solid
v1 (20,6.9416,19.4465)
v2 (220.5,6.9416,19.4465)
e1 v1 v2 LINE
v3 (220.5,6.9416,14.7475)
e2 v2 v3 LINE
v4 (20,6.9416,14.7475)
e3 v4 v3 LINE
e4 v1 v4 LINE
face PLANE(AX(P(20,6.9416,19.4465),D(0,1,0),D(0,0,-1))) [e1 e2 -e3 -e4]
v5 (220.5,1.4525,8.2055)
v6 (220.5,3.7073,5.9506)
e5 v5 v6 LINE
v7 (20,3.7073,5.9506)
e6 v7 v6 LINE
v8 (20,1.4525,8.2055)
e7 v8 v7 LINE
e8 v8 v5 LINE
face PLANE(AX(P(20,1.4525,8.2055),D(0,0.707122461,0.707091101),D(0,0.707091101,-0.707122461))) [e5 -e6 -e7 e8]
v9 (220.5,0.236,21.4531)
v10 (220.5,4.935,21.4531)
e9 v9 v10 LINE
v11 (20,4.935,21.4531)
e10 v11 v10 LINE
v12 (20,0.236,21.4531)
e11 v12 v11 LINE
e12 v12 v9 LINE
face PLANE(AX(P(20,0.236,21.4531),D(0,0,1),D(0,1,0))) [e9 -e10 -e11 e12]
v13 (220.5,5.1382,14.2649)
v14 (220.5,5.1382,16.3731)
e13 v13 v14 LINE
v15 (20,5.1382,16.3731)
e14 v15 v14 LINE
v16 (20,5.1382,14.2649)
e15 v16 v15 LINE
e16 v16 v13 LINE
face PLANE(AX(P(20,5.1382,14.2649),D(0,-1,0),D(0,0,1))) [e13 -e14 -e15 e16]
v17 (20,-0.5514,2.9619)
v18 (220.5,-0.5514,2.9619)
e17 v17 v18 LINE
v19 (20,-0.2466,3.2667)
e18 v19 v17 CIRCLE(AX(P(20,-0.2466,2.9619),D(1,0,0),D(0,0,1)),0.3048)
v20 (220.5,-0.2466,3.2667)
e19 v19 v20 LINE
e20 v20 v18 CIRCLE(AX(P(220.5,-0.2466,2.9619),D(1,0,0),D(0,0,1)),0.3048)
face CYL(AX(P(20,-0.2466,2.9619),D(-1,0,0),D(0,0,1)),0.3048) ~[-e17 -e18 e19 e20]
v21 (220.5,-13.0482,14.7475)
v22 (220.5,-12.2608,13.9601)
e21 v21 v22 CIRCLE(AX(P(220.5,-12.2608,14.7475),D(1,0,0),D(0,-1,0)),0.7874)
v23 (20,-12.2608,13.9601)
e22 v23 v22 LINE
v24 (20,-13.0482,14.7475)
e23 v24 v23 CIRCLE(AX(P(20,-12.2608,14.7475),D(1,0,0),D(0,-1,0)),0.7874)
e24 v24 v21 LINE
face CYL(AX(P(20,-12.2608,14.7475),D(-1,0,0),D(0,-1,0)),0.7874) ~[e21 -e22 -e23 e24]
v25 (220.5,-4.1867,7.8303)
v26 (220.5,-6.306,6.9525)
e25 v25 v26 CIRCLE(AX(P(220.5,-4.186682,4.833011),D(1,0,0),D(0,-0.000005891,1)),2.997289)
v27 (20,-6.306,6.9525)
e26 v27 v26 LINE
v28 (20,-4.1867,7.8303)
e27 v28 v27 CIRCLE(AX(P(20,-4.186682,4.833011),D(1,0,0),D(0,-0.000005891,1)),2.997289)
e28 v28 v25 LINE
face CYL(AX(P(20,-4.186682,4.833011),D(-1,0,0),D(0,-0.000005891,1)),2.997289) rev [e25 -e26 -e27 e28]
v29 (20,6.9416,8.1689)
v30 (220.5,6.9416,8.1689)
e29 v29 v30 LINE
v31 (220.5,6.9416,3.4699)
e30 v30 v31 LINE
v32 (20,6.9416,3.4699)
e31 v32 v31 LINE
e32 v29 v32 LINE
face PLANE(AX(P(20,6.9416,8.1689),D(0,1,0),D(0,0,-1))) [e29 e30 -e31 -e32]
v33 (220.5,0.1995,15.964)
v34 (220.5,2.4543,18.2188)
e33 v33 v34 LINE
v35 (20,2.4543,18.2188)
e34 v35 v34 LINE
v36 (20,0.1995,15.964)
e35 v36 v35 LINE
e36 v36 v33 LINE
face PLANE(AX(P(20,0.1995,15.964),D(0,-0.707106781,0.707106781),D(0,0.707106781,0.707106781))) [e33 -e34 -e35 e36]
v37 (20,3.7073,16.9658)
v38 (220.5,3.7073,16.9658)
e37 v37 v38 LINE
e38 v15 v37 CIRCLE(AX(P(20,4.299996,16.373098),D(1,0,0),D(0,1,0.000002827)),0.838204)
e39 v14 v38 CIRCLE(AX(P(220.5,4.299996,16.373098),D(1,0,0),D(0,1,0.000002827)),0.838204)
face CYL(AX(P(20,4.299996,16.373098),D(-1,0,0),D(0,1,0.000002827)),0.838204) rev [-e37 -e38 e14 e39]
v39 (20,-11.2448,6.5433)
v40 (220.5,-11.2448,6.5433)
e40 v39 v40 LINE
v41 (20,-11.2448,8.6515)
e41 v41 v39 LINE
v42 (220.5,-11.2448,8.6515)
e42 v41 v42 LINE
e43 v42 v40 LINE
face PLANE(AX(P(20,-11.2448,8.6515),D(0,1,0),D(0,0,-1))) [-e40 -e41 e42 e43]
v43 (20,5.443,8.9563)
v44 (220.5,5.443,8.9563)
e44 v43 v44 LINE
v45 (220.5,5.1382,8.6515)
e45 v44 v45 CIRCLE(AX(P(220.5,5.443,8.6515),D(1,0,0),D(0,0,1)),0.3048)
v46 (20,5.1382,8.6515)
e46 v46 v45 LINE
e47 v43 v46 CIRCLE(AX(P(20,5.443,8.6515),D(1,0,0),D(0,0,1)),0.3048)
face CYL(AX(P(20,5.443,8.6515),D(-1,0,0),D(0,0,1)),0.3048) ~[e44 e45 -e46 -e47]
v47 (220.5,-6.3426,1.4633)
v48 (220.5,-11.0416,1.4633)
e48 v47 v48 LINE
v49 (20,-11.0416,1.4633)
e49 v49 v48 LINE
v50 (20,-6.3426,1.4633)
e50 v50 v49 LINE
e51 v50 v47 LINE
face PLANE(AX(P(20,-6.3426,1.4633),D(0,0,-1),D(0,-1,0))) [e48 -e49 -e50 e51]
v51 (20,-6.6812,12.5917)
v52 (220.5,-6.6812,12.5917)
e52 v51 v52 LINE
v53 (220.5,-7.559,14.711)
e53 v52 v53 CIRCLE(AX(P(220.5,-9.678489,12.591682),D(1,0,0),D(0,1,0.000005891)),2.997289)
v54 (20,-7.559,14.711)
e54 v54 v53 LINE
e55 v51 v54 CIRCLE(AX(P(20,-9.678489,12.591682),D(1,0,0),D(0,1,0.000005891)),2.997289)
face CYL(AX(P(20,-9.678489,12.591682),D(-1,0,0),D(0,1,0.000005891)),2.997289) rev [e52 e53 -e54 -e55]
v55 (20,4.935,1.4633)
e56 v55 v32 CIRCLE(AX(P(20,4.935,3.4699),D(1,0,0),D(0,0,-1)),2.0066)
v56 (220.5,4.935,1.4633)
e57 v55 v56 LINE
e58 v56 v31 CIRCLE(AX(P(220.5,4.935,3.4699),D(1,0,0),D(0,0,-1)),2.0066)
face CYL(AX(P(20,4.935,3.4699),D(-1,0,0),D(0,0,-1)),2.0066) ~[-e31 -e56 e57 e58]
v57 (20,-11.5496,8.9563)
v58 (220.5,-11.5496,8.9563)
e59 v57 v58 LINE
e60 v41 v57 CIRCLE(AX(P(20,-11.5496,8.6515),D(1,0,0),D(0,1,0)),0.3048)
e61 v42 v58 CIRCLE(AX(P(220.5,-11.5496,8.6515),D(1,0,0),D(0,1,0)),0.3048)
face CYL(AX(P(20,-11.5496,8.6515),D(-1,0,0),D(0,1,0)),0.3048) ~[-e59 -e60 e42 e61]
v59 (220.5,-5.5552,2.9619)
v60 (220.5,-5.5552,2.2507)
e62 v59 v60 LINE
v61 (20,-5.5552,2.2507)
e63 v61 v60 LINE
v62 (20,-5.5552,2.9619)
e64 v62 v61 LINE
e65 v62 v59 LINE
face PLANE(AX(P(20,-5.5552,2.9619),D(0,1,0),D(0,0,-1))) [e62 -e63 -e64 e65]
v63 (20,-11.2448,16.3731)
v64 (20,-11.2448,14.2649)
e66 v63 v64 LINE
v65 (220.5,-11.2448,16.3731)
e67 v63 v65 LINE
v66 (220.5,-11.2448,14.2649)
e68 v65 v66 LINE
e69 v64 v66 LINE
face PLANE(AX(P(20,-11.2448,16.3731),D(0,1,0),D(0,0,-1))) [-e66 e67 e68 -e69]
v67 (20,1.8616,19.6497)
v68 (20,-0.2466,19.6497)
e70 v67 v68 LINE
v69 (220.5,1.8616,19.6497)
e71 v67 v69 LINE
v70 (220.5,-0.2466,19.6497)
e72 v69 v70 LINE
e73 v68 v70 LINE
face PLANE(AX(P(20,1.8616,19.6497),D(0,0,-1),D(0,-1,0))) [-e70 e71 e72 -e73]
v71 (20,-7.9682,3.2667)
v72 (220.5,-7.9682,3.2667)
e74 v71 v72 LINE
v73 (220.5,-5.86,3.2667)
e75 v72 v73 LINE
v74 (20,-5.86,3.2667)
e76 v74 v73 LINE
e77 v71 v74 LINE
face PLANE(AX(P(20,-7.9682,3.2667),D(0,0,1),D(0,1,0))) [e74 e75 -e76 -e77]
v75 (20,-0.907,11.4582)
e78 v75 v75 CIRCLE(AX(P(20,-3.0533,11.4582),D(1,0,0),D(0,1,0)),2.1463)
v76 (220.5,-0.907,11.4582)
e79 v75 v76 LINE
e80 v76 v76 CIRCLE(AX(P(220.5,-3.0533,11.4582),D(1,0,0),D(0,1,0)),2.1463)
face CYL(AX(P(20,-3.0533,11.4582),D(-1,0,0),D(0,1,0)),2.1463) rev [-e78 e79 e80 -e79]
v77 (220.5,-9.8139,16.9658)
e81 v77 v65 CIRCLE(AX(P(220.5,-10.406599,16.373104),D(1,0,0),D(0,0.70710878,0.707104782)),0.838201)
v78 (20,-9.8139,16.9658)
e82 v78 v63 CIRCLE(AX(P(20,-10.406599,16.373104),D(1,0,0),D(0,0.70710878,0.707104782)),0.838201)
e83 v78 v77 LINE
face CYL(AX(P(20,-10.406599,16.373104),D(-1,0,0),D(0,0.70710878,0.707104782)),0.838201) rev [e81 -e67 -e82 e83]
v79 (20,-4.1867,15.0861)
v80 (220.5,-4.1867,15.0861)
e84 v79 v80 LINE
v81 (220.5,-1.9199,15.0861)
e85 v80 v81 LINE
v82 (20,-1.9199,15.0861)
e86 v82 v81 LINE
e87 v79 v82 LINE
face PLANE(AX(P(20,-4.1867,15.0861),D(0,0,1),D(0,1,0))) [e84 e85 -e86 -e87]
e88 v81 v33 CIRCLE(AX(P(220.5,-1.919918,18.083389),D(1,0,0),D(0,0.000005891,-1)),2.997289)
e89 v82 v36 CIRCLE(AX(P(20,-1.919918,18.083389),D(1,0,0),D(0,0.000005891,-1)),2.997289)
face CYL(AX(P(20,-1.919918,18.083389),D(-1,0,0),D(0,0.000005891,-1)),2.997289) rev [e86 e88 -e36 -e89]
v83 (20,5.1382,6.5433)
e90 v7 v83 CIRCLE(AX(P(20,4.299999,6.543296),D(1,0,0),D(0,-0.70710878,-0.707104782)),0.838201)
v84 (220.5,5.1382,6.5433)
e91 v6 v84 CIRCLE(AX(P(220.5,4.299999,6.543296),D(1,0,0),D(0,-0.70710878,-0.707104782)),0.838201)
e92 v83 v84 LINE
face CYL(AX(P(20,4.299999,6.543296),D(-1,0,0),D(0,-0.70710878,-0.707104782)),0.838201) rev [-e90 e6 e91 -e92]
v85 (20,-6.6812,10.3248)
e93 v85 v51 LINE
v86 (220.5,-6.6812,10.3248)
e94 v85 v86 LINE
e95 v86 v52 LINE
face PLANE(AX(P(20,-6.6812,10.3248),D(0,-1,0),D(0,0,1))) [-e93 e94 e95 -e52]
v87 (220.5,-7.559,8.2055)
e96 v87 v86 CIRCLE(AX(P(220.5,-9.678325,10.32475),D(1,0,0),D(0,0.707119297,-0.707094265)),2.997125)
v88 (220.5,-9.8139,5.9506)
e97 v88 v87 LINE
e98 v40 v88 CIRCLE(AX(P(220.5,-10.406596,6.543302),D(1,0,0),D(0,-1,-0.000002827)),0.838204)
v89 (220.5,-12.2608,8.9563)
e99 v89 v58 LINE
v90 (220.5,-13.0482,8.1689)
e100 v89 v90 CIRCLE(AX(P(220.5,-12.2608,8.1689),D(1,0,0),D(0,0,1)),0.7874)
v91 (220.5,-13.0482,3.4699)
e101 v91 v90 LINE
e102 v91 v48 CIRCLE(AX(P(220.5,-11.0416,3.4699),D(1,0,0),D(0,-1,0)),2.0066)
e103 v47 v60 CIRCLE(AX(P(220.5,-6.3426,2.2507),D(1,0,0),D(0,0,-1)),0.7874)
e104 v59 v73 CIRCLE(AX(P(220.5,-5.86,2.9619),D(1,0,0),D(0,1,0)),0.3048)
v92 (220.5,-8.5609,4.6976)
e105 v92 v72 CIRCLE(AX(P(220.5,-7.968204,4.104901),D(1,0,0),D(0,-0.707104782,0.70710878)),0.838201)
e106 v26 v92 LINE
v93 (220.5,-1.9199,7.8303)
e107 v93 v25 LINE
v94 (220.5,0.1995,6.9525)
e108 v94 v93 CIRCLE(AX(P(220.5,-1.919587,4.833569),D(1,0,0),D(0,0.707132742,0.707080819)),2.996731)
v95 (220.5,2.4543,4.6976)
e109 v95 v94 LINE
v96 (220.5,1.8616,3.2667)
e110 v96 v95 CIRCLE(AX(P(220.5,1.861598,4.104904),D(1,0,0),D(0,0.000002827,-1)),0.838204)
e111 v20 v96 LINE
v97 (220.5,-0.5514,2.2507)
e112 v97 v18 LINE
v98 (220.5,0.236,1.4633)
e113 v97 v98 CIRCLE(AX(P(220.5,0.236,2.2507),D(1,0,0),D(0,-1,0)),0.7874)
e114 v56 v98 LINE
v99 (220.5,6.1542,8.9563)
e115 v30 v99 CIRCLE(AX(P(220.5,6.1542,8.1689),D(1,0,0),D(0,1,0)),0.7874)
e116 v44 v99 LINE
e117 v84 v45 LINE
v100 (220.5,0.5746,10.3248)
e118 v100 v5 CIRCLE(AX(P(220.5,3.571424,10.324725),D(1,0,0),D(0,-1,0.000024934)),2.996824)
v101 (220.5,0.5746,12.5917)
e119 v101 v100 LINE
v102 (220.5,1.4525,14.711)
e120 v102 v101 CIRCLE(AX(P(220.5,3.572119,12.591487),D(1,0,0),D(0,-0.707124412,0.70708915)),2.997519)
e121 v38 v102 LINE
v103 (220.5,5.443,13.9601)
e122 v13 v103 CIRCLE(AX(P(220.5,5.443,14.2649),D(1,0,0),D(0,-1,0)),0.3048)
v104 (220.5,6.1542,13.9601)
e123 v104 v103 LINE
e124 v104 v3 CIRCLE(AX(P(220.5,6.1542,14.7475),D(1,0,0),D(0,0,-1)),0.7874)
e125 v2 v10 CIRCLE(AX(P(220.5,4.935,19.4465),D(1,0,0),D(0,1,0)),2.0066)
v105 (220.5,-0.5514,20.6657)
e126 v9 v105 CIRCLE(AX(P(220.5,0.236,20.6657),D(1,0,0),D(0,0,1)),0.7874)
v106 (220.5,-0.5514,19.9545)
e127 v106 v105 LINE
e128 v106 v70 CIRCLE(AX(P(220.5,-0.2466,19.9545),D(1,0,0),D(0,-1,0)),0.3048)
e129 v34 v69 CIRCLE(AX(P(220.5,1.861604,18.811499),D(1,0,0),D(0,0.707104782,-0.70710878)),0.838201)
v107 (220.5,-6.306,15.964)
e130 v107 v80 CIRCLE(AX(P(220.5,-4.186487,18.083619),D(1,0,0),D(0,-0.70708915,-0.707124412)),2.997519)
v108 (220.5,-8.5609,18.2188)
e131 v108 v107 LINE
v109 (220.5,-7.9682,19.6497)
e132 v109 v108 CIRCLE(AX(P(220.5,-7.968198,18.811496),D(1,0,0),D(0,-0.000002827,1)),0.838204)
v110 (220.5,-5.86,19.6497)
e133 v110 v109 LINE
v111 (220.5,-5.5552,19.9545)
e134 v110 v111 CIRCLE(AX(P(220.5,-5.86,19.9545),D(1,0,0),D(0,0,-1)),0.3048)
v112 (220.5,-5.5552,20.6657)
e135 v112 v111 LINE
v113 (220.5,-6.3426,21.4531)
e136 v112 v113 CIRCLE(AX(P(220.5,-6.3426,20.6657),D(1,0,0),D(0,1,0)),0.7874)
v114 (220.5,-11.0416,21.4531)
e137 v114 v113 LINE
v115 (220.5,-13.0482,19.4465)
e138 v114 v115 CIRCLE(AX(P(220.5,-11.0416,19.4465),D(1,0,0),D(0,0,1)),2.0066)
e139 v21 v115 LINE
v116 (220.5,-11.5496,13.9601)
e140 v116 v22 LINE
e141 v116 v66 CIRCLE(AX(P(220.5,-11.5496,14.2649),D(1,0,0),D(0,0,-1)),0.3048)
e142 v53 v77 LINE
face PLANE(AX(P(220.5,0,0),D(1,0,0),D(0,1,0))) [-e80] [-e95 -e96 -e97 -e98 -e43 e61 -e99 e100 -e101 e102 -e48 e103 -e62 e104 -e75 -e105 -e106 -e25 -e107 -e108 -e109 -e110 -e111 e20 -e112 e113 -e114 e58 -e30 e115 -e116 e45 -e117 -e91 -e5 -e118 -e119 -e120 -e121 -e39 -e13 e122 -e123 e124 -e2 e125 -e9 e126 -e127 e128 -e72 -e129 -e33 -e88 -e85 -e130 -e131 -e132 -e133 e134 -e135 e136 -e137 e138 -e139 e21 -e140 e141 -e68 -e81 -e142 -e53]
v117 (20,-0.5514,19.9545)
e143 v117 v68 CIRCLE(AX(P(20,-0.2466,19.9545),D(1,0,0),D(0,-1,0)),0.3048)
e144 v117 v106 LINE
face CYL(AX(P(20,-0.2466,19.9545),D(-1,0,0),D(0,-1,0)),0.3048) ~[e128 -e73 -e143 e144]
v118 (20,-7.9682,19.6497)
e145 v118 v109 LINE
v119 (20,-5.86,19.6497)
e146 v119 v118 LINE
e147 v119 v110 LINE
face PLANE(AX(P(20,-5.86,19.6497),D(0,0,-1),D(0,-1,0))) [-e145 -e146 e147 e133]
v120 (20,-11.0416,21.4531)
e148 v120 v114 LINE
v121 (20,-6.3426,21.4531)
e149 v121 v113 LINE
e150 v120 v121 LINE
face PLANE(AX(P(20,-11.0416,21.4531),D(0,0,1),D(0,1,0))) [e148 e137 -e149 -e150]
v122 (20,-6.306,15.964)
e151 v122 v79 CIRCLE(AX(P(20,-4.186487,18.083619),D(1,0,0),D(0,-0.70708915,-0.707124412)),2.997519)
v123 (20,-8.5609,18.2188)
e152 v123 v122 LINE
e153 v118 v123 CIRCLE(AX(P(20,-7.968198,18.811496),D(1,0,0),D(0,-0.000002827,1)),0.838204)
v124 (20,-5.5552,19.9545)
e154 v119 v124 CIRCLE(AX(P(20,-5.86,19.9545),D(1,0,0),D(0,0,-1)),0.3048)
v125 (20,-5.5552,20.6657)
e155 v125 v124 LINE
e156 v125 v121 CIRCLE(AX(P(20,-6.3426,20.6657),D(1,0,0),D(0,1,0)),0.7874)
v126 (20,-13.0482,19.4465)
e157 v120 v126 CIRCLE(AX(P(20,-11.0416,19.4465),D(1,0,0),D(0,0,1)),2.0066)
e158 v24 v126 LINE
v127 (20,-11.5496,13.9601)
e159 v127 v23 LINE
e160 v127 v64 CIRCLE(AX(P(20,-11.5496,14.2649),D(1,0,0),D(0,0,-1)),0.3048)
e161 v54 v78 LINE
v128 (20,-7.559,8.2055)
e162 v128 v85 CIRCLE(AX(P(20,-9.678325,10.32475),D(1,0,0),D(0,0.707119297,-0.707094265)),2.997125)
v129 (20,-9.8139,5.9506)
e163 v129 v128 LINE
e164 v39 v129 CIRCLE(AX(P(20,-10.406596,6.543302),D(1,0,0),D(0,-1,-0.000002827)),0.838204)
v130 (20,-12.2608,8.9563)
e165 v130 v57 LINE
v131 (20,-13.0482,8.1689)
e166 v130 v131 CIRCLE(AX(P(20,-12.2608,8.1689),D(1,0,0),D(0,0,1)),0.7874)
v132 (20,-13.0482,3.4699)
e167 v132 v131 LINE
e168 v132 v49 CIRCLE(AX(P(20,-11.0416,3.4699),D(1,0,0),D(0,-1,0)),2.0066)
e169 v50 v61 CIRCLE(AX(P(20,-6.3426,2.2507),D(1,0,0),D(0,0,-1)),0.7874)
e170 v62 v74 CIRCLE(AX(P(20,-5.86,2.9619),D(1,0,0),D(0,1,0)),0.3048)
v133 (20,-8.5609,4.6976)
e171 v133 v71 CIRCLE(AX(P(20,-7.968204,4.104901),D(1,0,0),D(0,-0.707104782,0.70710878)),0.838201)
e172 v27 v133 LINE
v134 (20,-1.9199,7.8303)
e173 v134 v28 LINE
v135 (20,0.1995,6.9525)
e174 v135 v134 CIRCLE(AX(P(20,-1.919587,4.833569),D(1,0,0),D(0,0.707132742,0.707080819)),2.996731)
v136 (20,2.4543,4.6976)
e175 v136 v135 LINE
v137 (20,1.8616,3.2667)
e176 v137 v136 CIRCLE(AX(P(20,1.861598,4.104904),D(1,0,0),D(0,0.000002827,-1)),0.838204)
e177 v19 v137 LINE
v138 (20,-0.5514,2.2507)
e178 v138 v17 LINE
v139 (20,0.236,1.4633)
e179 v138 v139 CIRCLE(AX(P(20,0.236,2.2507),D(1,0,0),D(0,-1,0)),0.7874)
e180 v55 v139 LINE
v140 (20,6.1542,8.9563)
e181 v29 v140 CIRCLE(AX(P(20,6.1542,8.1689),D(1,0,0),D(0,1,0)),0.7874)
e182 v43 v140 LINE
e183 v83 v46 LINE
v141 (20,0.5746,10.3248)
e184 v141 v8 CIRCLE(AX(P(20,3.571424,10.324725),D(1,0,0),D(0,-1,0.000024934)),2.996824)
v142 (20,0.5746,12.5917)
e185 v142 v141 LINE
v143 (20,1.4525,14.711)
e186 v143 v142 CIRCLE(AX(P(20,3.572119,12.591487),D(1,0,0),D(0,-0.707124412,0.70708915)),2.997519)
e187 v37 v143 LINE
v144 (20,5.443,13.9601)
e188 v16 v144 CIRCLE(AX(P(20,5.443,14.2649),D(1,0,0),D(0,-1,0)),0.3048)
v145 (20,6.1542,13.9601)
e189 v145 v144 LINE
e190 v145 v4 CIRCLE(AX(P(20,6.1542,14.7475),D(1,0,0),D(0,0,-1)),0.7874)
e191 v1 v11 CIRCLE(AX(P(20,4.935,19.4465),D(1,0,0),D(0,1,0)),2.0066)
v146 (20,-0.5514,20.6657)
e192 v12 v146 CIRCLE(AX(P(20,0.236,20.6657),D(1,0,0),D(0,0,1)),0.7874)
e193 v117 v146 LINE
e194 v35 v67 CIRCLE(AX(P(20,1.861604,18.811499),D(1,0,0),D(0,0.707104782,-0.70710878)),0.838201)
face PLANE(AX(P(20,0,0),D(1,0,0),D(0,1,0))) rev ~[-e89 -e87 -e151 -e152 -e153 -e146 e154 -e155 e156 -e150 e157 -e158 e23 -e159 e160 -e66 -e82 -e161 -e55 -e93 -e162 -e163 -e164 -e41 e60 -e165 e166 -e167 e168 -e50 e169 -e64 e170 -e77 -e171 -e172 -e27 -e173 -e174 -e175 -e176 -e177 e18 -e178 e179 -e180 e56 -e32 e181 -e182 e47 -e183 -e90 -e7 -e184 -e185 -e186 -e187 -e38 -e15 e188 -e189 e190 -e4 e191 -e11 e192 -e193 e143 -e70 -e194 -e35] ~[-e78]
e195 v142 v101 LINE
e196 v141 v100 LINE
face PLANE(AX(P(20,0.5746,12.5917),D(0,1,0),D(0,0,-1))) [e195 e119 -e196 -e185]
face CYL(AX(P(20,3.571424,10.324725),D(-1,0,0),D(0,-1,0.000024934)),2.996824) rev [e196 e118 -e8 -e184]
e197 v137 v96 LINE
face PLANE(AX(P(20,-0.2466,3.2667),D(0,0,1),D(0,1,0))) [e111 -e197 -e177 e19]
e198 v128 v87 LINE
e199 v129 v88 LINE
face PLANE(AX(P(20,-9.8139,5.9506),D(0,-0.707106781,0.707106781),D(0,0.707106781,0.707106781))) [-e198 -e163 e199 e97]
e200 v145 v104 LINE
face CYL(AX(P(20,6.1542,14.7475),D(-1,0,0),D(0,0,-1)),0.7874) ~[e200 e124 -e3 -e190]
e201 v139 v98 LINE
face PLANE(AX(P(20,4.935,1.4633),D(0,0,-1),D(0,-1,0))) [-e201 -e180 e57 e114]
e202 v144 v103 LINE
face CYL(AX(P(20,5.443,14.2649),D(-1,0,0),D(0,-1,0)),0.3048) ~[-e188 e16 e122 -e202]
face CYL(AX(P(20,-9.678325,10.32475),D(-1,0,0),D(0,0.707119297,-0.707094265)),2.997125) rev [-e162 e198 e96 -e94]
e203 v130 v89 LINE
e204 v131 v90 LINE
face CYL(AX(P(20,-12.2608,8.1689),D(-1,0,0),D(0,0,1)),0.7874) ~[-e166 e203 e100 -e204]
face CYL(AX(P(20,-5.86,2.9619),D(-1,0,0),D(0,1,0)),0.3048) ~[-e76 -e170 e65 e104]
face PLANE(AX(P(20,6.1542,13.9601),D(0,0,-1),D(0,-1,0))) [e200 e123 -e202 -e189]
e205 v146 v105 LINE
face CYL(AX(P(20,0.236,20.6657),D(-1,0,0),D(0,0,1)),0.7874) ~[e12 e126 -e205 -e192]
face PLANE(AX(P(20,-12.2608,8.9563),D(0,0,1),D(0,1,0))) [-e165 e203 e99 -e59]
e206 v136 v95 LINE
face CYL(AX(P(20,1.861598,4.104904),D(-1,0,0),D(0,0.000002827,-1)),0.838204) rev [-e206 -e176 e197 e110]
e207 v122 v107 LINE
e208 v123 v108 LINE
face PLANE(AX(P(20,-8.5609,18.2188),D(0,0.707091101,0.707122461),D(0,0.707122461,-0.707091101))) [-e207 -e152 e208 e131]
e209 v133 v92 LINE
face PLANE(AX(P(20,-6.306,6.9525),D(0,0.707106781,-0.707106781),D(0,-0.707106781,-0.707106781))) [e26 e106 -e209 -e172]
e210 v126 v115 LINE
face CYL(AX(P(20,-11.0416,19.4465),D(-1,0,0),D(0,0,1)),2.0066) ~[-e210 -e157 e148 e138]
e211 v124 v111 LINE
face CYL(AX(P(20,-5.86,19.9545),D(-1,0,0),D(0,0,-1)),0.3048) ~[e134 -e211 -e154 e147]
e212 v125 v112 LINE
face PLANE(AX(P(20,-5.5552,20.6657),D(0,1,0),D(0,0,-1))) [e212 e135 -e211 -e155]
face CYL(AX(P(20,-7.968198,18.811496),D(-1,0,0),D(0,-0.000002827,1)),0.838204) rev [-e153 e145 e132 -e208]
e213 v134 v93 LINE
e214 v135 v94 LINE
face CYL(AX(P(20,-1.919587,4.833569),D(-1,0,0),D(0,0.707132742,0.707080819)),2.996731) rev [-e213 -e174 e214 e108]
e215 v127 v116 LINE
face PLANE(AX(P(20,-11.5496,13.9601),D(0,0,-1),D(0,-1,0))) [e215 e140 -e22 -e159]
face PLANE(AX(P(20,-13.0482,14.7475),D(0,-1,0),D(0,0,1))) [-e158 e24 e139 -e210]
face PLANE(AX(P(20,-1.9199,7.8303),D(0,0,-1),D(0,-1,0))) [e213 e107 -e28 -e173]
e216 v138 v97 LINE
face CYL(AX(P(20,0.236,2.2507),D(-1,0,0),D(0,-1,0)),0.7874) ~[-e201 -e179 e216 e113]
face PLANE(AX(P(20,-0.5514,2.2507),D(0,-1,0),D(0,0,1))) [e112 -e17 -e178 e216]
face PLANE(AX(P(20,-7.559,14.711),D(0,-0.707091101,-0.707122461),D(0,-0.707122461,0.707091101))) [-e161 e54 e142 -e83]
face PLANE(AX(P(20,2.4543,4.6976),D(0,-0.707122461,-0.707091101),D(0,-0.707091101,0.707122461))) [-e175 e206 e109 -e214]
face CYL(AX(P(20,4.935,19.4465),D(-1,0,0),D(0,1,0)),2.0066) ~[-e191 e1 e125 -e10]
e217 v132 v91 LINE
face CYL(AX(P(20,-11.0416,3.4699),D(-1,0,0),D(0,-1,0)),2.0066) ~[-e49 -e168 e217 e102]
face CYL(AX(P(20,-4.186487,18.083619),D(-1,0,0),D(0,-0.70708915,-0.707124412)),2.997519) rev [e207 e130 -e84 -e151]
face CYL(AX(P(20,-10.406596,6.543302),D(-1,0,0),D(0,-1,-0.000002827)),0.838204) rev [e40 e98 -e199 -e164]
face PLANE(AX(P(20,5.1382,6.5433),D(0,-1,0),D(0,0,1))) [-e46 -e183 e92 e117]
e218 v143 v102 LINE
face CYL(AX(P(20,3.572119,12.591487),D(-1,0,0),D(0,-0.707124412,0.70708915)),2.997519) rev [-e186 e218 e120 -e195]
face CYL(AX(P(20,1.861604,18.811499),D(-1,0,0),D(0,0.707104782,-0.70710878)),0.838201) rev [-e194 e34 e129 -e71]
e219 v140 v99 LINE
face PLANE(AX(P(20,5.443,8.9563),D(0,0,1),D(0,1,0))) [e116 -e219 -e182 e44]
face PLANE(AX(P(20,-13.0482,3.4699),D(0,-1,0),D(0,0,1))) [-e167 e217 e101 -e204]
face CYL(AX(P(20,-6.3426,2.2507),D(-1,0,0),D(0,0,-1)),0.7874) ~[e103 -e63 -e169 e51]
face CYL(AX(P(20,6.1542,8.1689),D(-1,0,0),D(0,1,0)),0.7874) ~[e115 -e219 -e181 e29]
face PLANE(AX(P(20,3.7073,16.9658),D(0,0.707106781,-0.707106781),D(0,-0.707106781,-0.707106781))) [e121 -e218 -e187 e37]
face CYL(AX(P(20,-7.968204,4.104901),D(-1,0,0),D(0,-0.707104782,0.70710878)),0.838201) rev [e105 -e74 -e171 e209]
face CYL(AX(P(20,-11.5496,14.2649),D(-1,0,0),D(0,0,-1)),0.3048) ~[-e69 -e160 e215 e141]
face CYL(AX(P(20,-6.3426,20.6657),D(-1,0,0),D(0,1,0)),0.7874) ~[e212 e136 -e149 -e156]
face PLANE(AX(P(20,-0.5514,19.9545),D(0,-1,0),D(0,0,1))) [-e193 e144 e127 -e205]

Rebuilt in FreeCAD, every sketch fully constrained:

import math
import FreeCAD as App
import Part
import Sketcher
from FreeCAD import Vector
Q = App.Units.Quantity

doc = App.newDocument("Part")
body = doc.addObject("PartDesign::Body", "Body")

# Sketch on YZ plane
sketch1 = body.newObject("Sketcher::SketchObject", "Sketch")
sketch1.AttachmentSupport = (doc.getObject("YZ_Plane"), [""])
sketch1.MapMode = "FlatFace"
sketch1.AttachmentOffset = App.Placement(Vector(0, 0, 0.7874016 * 25.4), App.Rotation())
sketch1.addGeometry(Part.LineSegment(Vector(0.1995, 6.9525, 0), Vector(2.4543, 4.6976, 0)), False)
sketch1.addGeometry(Part.ArcOfCircle(Part.Circle(Vector(1.8616, 4.1049, 0), Vector(0, 0, 1), 0.8382), math.radians(-90), math.radians(45)), False)
sketch1.addGeometry(Part.LineSegment(Vector(1.8616, 3.2667, 0), Vector(-0.2466, 3.2667, 0)), False)
sketch1.addGeometry(Part.ArcOfCircle(Part.Circle(Vector(-0.2466, 2.9619, 0), Vector(0, 0, 1), 0.3048), math.radians(90), math.radians(180)), False)
sketch1.addGeometry(Part.LineSegment(Vector(-0.5514, 2.9619, 0), Vector(-0.5514, 2.2507, 0)), False)
sketch1.addGeometry(Part.ArcOfCircle(Part.Circle(Vector(0.236, 2.2507, 0), Vector(0, 0, 1), 0.7874), math.radians(180), math.radians(270)), False)
sketch1.addGeometry(Part.LineSegment(Vector(0.236, 1.4633, 0), Vector(4.935, 1.4633, 0)), False)
sketch1.addGeometry(Part.ArcOfCircle(Part.Circle(Vector(4.935, 3.4699, 0), Vector(0, 0, 1), 2.0066), math.radians(-90), math.radians(0)), False)
sketch1.addGeometry(Part.LineSegment(Vector(6.9416, 3.4699, 0), Vector(6.9416, 8.1689, 0)), False)
sketch1.addGeometry(Part.ArcOfCircle(Part.Circle(Vector(6.1542, 8.1689, 0), Vector(0, 0, 1), 0.7874), math.radians(0), math.radians(90)), False)
sketch1.addGeometry(Part.LineSegment(Vector(6.1542, 8.9563, 0), Vector(5.443, 8.9563, 0)), False)
sketch1.addGeometry(Part.ArcOfCircle(Part.Circle(Vector(5.443, 8.6515, 0), Vector(0, 0, 1), 0.3048), math.radians(90), math.radians(180)), False)
sketch1.addGeometry(Part.LineSegment(Vector(5.1382, 8.6515, 0), Vector(5.1382, 6.5433, 0)), False)
sketch1.addGeometry(Part.ArcOfCircle(Part.Circle(Vector(4.3, 6.5433, 0), Vector(0, 0, 1), 0.838204), math.radians(-135), math.radians(0)), False)
sketch1.addGeometry(Part.LineSegment(Vector(3.7073, 5.9506, 0), Vector(1.4525, 8.2055, 0)), False)
sketch1.addGeometry(Part.ArcOfCircle(Part.Circle(Vector(3.5718, 10.3248, 0), Vector(0, 0, 1), 2.9972), math.radians(180), math.radians(225)), False)
sketch1.addGeometry(Part.LineSegment(Vector(0.5746, 10.3248, 0), Vector(0.5746, 12.5917, 0)), False)
sketch1.addGeometry(Part.ArcOfCircle(Part.Circle(Vector(3.5718, 12.5917, 0), Vector(0, 0, 1), 2.997143), math.radians(135), math.radians(180)), False)
sketch1.addGeometry(Part.LineSegment(Vector(1.4525, 14.711, 0), Vector(3.7073, 16.9658, 0)), False)
sketch1.addGeometry(Part.ArcOfCircle(Part.Circle(Vector(4.3, 16.3731, 0), Vector(0, 0, 1), 0.8382), math.radians(0), math.radians(135)), False)
sketch1.addGeometry(Part.LineSegment(Vector(5.1382, 16.3731, 0), Vector(5.1382, 14.2649, 0)), False)
sketch1.addGeometry(Part.ArcOfCircle(Part.Circle(Vector(5.443, 14.2649, 0), Vector(0, 0, 1), 0.3048), math.radians(180), math.radians(270)), False)
sketch1.addGeometry(Part.LineSegment(Vector(5.443, 13.9601, 0), Vector(6.1542, 13.9601, 0)), False)
sketch1.addGeometry(Part.ArcOfCircle(Part.Circle(Vector(6.1542, 14.7475, 0), Vector(0, 0, 1), 0.7874), math.radians(-90), math.radians(0)), False)
sketch1.addGeometry(Part.LineSegment(Vector(6.9416, 14.7475, 0), Vector(6.9416, 19.4465, 0)), False)
sketch1.addGeometry(Part.ArcOfCircle(Part.Circle(Vector(4.935, 19.4465, 0), Vector(0, 0, 1), 2.0066), math.radians(0), math.radians(90)), False)
sketch1.addGeometry(Part.LineSegment(Vector(4.935, 21.4531, 0), Vector(0.236, 21.4531, 0)), False)
sketch1.addGeometry(Part.ArcOfCircle(Part.Circle(Vector(0.236, 20.6657, 0), Vector(0, 0, 1), 0.7874), math.radians(90), math.radians(180)), False)
sketch1.addGeometry(Part.LineSegment(Vector(-0.5514, 20.6657, 0), Vector(-0.5514, 19.9545, 0)), False)
sketch1.addGeometry(Part.ArcOfCircle(Part.Circle(Vector(-0.2466, 19.9545, 0), Vector(0, 0, 1), 0.3048), math.radians(180), math.radians(270)), False)
sketch1.addGeometry(Part.LineSegment(Vector(-0.2466, 19.6497, 0), Vector(1.8616, 19.6497, 0)), False)
sketch1.addGeometry(Part.ArcOfCircle(Part.Circle(Vector(1.8616, 18.8115, 0), Vector(0, 0, 1), 0.838204), math.radians(-45), math.radians(90)), False)
sketch1.addGeometry(Part.LineSegment(Vector(2.4543, 18.2188, 0), Vector(0.1995, 15.964, 0)), False)
sketch1.addGeometry(Part.ArcOfCircle(Part.Circle(Vector(-1.9199, 18.0833, 0), Vector(0, 0, 1), 2.9972), math.radians(-90), math.radians(-44.998648)), False)
sketch1.addGeometry(Part.LineSegment(Vector(-1.9199, 15.0861, 0), Vector(-4.1867, 15.0861, 0)), False)
sketch1.addGeometry(Part.ArcOfCircle(Part.Circle(Vector(-4.1867, 18.0833, 0), Vector(0, 0, 1), 2.997143), math.radians(-135), math.radians(-90)), False)
sketch1.addGeometry(Part.LineSegment(Vector(-6.306, 15.964, 0), Vector(-8.5609, 18.2188, 0)), False)
sketch1.addGeometry(Part.ArcOfCircle(Part.Circle(Vector(-7.9682, 18.8115, 0), Vector(0, 0, 1), 0.8382), math.radians(90), math.radians(225)), False)
sketch1.addGeometry(Part.LineSegment(Vector(-7.9682, 19.6497, 0), Vector(-5.86, 19.6497, 0)), False)
sketch1.addGeometry(Part.ArcOfCircle(Part.Circle(Vector(-5.86, 19.9545, 0), Vector(0, 0, 1), 0.3048), math.radians(-90), math.radians(0)), False)
sketch1.addGeometry(Part.LineSegment(Vector(-5.5552, 19.9545, 0), Vector(-5.5552, 20.6657, 0)), False)
sketch1.addGeometry(Part.ArcOfCircle(Part.Circle(Vector(-6.3426, 20.6657, 0), Vector(0, 0, 1), 0.7874), math.radians(0), math.radians(90)), False)
sketch1.addGeometry(Part.LineSegment(Vector(-6.3426, 21.4531, 0), Vector(-11.0416, 21.4531, 0)), False)
sketch1.addGeometry(Part.ArcOfCircle(Part.Circle(Vector(-11.0416, 19.4465, 0), Vector(0, 0, 1), 2.0066), math.radians(90), math.radians(180)), False)
sketch1.addGeometry(Part.LineSegment(Vector(-13.0482, 19.4465, 0), Vector(-13.0482, 14.7475, 0)), False)
sketch1.addGeometry(Part.ArcOfCircle(Part.Circle(Vector(-12.2608, 14.7475, 0), Vector(0, 0, 1), 0.7874), math.radians(180), math.radians(270)), False)
sketch1.addGeometry(Part.LineSegment(Vector(-12.2608, 13.9601, 0), Vector(-11.5496, 13.9601, 0)), False)
sketch1.addGeometry(Part.ArcOfCircle(Part.Circle(Vector(-11.5496, 14.2649, 0), Vector(0, 0, 1), 0.3048), math.radians(-90), math.radians(0)), False)
sketch1.addGeometry(Part.LineSegment(Vector(-11.2448, 14.2649, 0), Vector(-11.2448, 16.3731, 0)), False)
sketch1.addGeometry(Part.ArcOfCircle(Part.Circle(Vector(-10.4066, 16.3731, 0), Vector(0, 0, 1), 0.838204), math.radians(45), math.radians(180)), False)
sketch1.addGeometry(Part.LineSegment(Vector(-9.8139, 16.9658, 0), Vector(-7.559, 14.711, 0)), False)
sketch1.addGeometry(Part.ArcOfCircle(Part.Circle(Vector(-9.6784, 12.5917, 0), Vector(0, 0, 1), 2.9972), math.radians(0), math.radians(44.998648)), False)
sketch1.addGeometry(Part.LineSegment(Vector(-6.6812, 12.5917, 0), Vector(-6.6812, 10.3248, 0)), False)
sketch1.addGeometry(Part.ArcOfCircle(Part.Circle(Vector(-9.6784, 10.3248, 0), Vector(0, 0, 1), 2.997214), math.radians(-44.998648), math.radians(0)), False)
sketch1.addGeometry(Part.LineSegment(Vector(-7.559, 8.2055, 0), Vector(-9.8139, 5.9506, 0)), False)
sketch1.addGeometry(Part.ArcOfCircle(Part.Circle(Vector(-10.4066, 6.5433, 0), Vector(0, 0, 1), 0.8382), math.radians(180), math.radians(315)), False)
sketch1.addGeometry(Part.LineSegment(Vector(-11.2448, 6.5433, 0), Vector(-11.2448, 8.6515, 0)), False)
sketch1.addGeometry(Part.ArcOfCircle(Part.Circle(Vector(-11.5496, 8.6515, 0), Vector(0, 0, 1), 0.3048), math.radians(0), math.radians(90)), False)
sketch1.addGeometry(Part.LineSegment(Vector(-11.5496, 8.9563, 0), Vector(-12.2608, 8.9563, 0)), False)
sketch1.addGeometry(Part.ArcOfCircle(Part.Circle(Vector(-12.2608, 8.1689, 0), Vector(0, 0, 1), 0.7874), math.radians(90), math.radians(180)), False)
sketch1.addGeometry(Part.LineSegment(Vector(-13.0482, 8.1689, 0), Vector(-13.0482, 3.4699, 0)), False)
sketch1.addGeometry(Part.ArcOfCircle(Part.Circle(Vector(-11.0416, 3.4699, 0), Vector(0, 0, 1), 2.0066), math.radians(180), math.radians(270)), False)
sketch1.addGeometry(Part.LineSegment(Vector(-11.0416, 1.4633, 0), Vector(-6.3426, 1.4633, 0)), False)
sketch1.addGeometry(Part.ArcOfCircle(Part.Circle(Vector(-6.3426, 2.2507, 0), Vector(0, 0, 1), 0.7874), math.radians(-90), math.radians(0)), False)
sketch1.addGeometry(Part.LineSegment(Vector(-5.5552, 2.2507, 0), Vector(-5.5552, 2.9619, 0)), False)
sketch1.addGeometry(Part.ArcOfCircle(Part.Circle(Vector(-5.86, 2.9619, 0), Vector(0, 0, 1), 0.3048), math.radians(0), math.radians(90)), False)
sketch1.addGeometry(Part.LineSegment(Vector(-5.86, 3.2667, 0), Vector(-7.9682, 3.2667, 0)), False)
sketch1.addGeometry(Part.ArcOfCircle(Part.Circle(Vector(-7.9682, 4.1049, 0), Vector(0, 0, 1), 0.838204), math.radians(135), math.radians(270)), False)
sketch1.addGeometry(Part.LineSegment(Vector(-8.5609, 4.6976, 0), Vector(-6.306, 6.9525, 0)), False)
sketch1.addGeometry(Part.ArcOfCircle(Part.Circle(Vector(-4.1867, 4.8331, 0), Vector(0, 0, 1), 2.9972), math.radians(90), math.radians(134.998648)), False)
sketch1.addGeometry(Part.LineSegment(Vector(-4.1867, 7.8303, 0), Vector(-1.9199, 7.8303, 0)), False)
sketch1.addGeometry(Part.ArcOfCircle(Part.Circle(Vector(-1.9199, 4.8331, 0), Vector(0, 0, 1), 2.997284), math.radians(45), math.radians(90)), False)
sketch1.addGeometry(Part.Circle(Vector(-3.0533, 11.4582, 0), Vector(0, 0, 1), 2.1463), False)
sketch1.addConstraint(Sketcher.Constraint("Tangent", 0, 2, 1, 2))
sketch1.addConstraint(Sketcher.Constraint("Tangent", 1, 1, 2, 1))
sketch1.addConstraint(Sketcher.Constraint("Tangent", 2, 2, 3, 1))
sketch1.addConstraint(Sketcher.Constraint("Tangent", 3, 2, 4, 1))
sketch1.addConstraint(Sketcher.Constraint("Tangent", 4, 2, 5, 1))
sketch1.addConstraint(Sketcher.Constraint("Tangent", 5, 2, 6, 1))
sketch1.addConstraint(Sketcher.Constraint("Tangent", 6, 2, 7, 1))
sketch1.addConstraint(Sketcher.Constraint("Tangent", 7, 2, 8, 1))
sketch1.addConstraint(Sketcher.Constraint("Tangent", 8, 2, 9, 1))
sketch1.addConstraint(Sketcher.Constraint("Tangent", 9, 2, 10, 1))
sketch1.addConstraint(Sketcher.Constraint("Tangent", 10, 2, 11, 1))
sketch1.addConstraint(Sketcher.Constraint("Tangent", 11, 2, 12, 1))
sketch1.addConstraint(Sketcher.Constraint("Tangent", 12, 2, 13, 2))
sketch1.addConstraint(Sketcher.Constraint("Tangent", 13, 1, 14, 1))
sketch1.addConstraint(Sketcher.Constraint("Tangent", 14, 2, 15, 2))
sketch1.addConstraint(Sketcher.Constraint("Tangent", 15, 1, 16, 1))
sketch1.addConstraint(Sketcher.Constraint("Tangent", 16, 2, 17, 2))
sketch1.addConstraint(Sketcher.Constraint("Tangent", 17, 1, 18, 1))
sketch1.addConstraint(Sketcher.Constraint("Tangent", 18, 2, 19, 2))
sketch1.addConstraint(Sketcher.Constraint("Tangent", 19, 1, 20, 1))
sketch1.addConstraint(Sketcher.Constraint("Tangent", 20, 2, 21, 1))
sketch1.addConstraint(Sketcher.Constraint("Tangent", 21, 2, 22, 1))
sketch1.addConstraint(Sketcher.Constraint("Tangent", 22, 2, 23, 1))
sketch1.addConstraint(Sketcher.Constraint("Tangent", 23, 2, 24, 1))
sketch1.addConstraint(Sketcher.Constraint("Tangent", 24, 2, 25, 1))
sketch1.addConstraint(Sketcher.Constraint("Tangent", 25, 2, 26, 1))
sketch1.addConstraint(Sketcher.Constraint("Tangent", 26, 2, 27, 1))
sketch1.addConstraint(Sketcher.Constraint("Tangent", 27, 2, 28, 1))
sketch1.addConstraint(Sketcher.Constraint("Tangent", 28, 2, 29, 1))
sketch1.addConstraint(Sketcher.Constraint("Tangent", 29, 2, 30, 1))
sketch1.addConstraint(Sketcher.Constraint("Tangent", 30, 2, 31, 2))
sketch1.addConstraint(Sketcher.Constraint("Tangent", 31, 1, 32, 1))
sketch1.addConstraint(Sketcher.Constraint("Tangent", 32, 2, 33, 2))
sketch1.addConstraint(Sketcher.Constraint("Tangent", 33, 1, 34, 1))
sketch1.addConstraint(Sketcher.Constraint("Tangent", 34, 2, 35, 2))
sketch1.addConstraint(Sketcher.Constraint("Tangent", 35, 1, 36, 1))
sketch1.addConstraint(Sketcher.Constraint("Tangent", 36, 2, 37, 2))
sketch1.addConstraint(Sketcher.Constraint("Tangent", 37, 1, 38, 1))
sketch1.addConstraint(Sketcher.Constraint("Tangent", 38, 2, 39, 1))
sketch1.addConstraint(Sketcher.Constraint("Tangent", 39, 2, 40, 1))
sketch1.addConstraint(Sketcher.Constraint("Tangent", 40, 2, 41, 1))
sketch1.addConstraint(Sketcher.Constraint("Tangent", 41, 2, 42, 1))
sketch1.addConstraint(Sketcher.Constraint("Tangent", 42, 2, 43, 1))
sketch1.addConstraint(Sketcher.Constraint("Tangent", 43, 2, 44, 1))
sketch1.addConstraint(Sketcher.Constraint("Tangent", 44, 2, 45, 1))
sketch1.addConstraint(Sketcher.Constraint("Tangent", 45, 2, 46, 1))
sketch1.addConstraint(Sketcher.Constraint("Tangent", 46, 2, 47, 1))
sketch1.addConstraint(Sketcher.Constraint("Tangent", 47, 2, 48, 1))
sketch1.addConstraint(Sketcher.Constraint("Tangent", 48, 2, 49, 2))
sketch1.addConstraint(Sketcher.Constraint("Tangent", 49, 1, 50, 1))
sketch1.addConstraint(Sketcher.Constraint("Tangent", 50, 2, 51, 2))
sketch1.addConstraint(Sketcher.Constraint("Tangent", 51, 1, 52, 1))
sketch1.addConstraint(Sketcher.Constraint("Tangent", 52, 2, 53, 2))
sketch1.addConstraint(Sketcher.Constraint("Tangent", 53, 1, 54, 1))
sketch1.addConstraint(Sketcher.Constraint("Tangent", 54, 2, 55, 2))
sketch1.addConstraint(Sketcher.Constraint("Tangent", 55, 1, 56, 1))
sketch1.addConstraint(Sketcher.Constraint("Tangent", 56, 2, 57, 1))
sketch1.addConstraint(Sketcher.Constraint("Tangent", 57, 2, 58, 1))
sketch1.addConstraint(Sketcher.Constraint("Tangent", 58, 2, 59, 1))
sketch1.addConstraint(Sketcher.Constraint("Tangent", 59, 2, 60, 1))
sketch1.addConstraint(Sketcher.Constraint("Tangent", 60, 2, 61, 1))
sketch1.addConstraint(Sketcher.Constraint("Tangent", 61, 2, 62, 1))
sketch1.addConstraint(Sketcher.Constraint("Tangent", 62, 2, 63, 1))
sketch1.addConstraint(Sketcher.Constraint("Tangent", 63, 2, 64, 1))
sketch1.addConstraint(Sketcher.Constraint("Tangent", 64, 2, 65, 1))
sketch1.addConstraint(Sketcher.Constraint("Tangent", 65, 2, 66, 1))
sketch1.addConstraint(Sketcher.Constraint("Tangent", 66, 2, 67, 2))
sketch1.addConstraint(Sketcher.Constraint("Tangent", 67, 1, 68, 1))
sketch1.addConstraint(Sketcher.Constraint("Tangent", 68, 2, 69, 2))
sketch1.addConstraint(Sketcher.Constraint("Tangent", 69, 1, 70, 1))
sketch1.addConstraint(Sketcher.Constraint("Tangent", 70, 2, 71, 2))
sketch1.addConstraint(Sketcher.Constraint("Tangent", 71, 1, 0, 1))
sketch1.addConstraint(Sketcher.Constraint("Horizontal", 2))
sketch1.addConstraint(Sketcher.Constraint("Vertical", 4))
sketch1.addConstraint(Sketcher.Constraint("Horizontal", 6))
sketch1.addConstraint(Sketcher.Constraint("Vertical", 8))
sketch1.addConstraint(Sketcher.Constraint("Horizontal", 10))
sketch1.addConstraint(Sketcher.Constraint("Vertical", 12))
sketch1.addConstraint(Sketcher.Constraint("Vertical", 16))
sketch1.addConstraint(Sketcher.Constraint("Vertical", 20))
sketch1.addConstraint(Sketcher.Constraint("Horizontal", 22))
sketch1.addConstraint(Sketcher.Constraint("Vertical", 24))
sketch1.addConstraint(Sketcher.Constraint("Horizontal", 26))
sketch1.addConstraint(Sketcher.Constraint("Vertical", 28))
sketch1.addConstraint(Sketcher.Constraint("Horizontal", 30))
sketch1.addConstraint(Sketcher.Constraint("Horizontal", 34))
sketch1.addConstraint(Sketcher.Constraint("Horizontal", 38))
sketch1.addConstraint(Sketcher.Constraint("Vertical", 40))
sketch1.addConstraint(Sketcher.Constraint("Horizontal", 42))
sketch1.addConstraint(Sketcher.Constraint("Vertical", 44))
sketch1.addConstraint(Sketcher.Constraint("Horizontal", 46))
sketch1.addConstraint(Sketcher.Constraint("Vertical", 48))
sketch1.addConstraint(Sketcher.Constraint("Vertical", 52))
sketch1.addConstraint(Sketcher.Constraint("Vertical", 56))
sketch1.addConstraint(Sketcher.Constraint("Horizontal", 58))
sketch1.addConstraint(Sketcher.Constraint("Vertical", 60))
sketch1.addConstraint(Sketcher.Constraint("Horizontal", 62))
sketch1.addConstraint(Sketcher.Constraint("Vertical", 64))
sketch1.addConstraint(Sketcher.Constraint("Horizontal", 66))
sketch1.addConstraint(Sketcher.Constraint("Horizontal", 70))
sketch1.addConstraint(Sketcher.Constraint("Equal", 5, 9))
sketch1.addConstraint(Sketcher.Constraint("Equal", 3, 11))
sketch1.addConstraint(Sketcher.Constraint("Equal", 1, 13))
sketch1.addConstraint(Sketcher.Constraint("Equal", 15, 17))
sketch1.addConstraint(Sketcher.Constraint("Equal", 13, 19))
sketch1.addConstraint(Sketcher.Constraint("Equal", 11, 21))
sketch1.addConstraint(Sketcher.Constraint("Equal", 9, 23))
sketch1.addConstraint(Sketcher.Constraint("Equal", 7, 25))
sketch1.addConstraint(Sketcher.Constraint("Equal", 23, 27))
sketch1.addConstraint(Sketcher.Constraint("Equal", 21, 29))
sketch1.addConstraint(Sketcher.Constraint("Equal", 19, 31))
sketch1.addConstraint(Sketcher.Constraint("Equal", 17, 33))
sketch1.addConstraint(Sketcher.Constraint("Equal", 33, 35))
sketch1.addConstraint(Sketcher.Constraint("Equal", 31, 37))
sketch1.addConstraint(Sketcher.Constraint("Equal", 29, 39))
sketch1.addConstraint(Sketcher.Constraint("Equal", 27, 41))
sketch1.addConstraint(Sketcher.Constraint("Equal", 25, 43))
sketch1.addConstraint(Sketcher.Constraint("Equal", 41, 45))
sketch1.addConstraint(Sketcher.Constraint("Equal", 39, 47))
sketch1.addConstraint(Sketcher.Constraint("Equal", 37, 49))
sketch1.addConstraint(Sketcher.Constraint("Equal", 35, 51))
sketch1.addConstraint(Sketcher.Constraint("Equal", 51, 53))
sketch1.addConstraint(Sketcher.Constraint("Equal", 49, 55))
sketch1.addConstraint(Sketcher.Constraint("Equal", 47, 57))
sketch1.addConstraint(Sketcher.Constraint("Equal", 45, 59))
sketch1.addConstraint(Sketcher.Constraint("Equal", 43, 61))
sketch1.addConstraint(Sketcher.Constraint("Equal", 59, 63))
sketch1.addConstraint(Sketcher.Constraint("Equal", 57, 65))
sketch1.addConstraint(Sketcher.Constraint("Equal", 55, 67))
sketch1.addConstraint(Sketcher.Constraint("Equal", 53, 69))
sketch1.addConstraint(Sketcher.Constraint("Equal", 69, 71))
sketch1.addConstraint(Sketcher.Constraint("Parallel", 0, 14))
sketch1.addConstraint(Sketcher.Constraint("Perpendicular", 14, 18))
sketch1.addConstraint(Sketcher.Constraint("Parallel", 18, 32))
sketch1.addConstraint(Sketcher.Constraint("Perpendicular", 32, 36))
sketch1.addConstraint(Sketcher.Constraint("Parallel", 36, 50))
sketch1.addConstraint(Sketcher.Constraint("Perpendicular", 50, 54))
sketch1.addConstraint(Sketcher.Constraint("Parallel", 54, 68))
sketch1.addConstraint(Sketcher.Constraint("Horizontal", 31, 3, 37, 3))
sketch1.addConstraint(Sketcher.Constraint("Horizontal", 27, 3, 41, 3))
sketch1.addConstraint(Sketcher.Constraint("Horizontal", 23, 3, 45, 3))
sketch1.addConstraint(Sketcher.Constraint("Horizontal", 19, 3, 49, 3))
sketch1.addConstraint(Sketcher.Constraint("Horizontal", 17, 3, 51, 3))
sketch1.addConstraint(Sketcher.Constraint("Horizontal", 15, 3, 53, 3))
sketch1.addConstraint(Sketcher.Constraint("Horizontal", 13, 3, 55, 3))
sketch1.addConstraint(Sketcher.Constraint("Horizontal", 11, 3, 57, 3))
sketch1.addConstraint(Sketcher.Constraint("Horizontal", 7, 3, 61, 3))
sketch1.addConstraint(Sketcher.Constraint("Horizontal", 3, 3, 65, 3))
sketch1.addConstraint(Sketcher.Constraint("Horizontal", 32, 2, 35, 1))
sketch1.addConstraint(Sketcher.Constraint("Vertical", 13, 3, 19, 3))
sketch1.addConstraint(Sketcher.Constraint("Vertical", 9, 3, 23, 3))
sketch1.addConstraint(Sketcher.Constraint("Vertical", 5, 3, 27, 3))
sketch1.addConstraint(Sketcher.Constraint("Vertical", 1, 3, 31, 3))
sketch1.addConstraint(Sketcher.Constraint("Vertical", 45, 3, 59, 3))
sketch1.addConstraint(Sketcher.Constraint("Vertical", 41, 3, 63, 3))
sketch1.addConstraint(Sketcher.Constraint("Vertical", 37, 3, 67, 3))
sketch1.addConstraint(Sketcher.Constraint("Vertical", 35, 3, 69, 3))
sketch1.addConstraint(Sketcher.Constraint("Equal", 30, 38))
sketch1.addConstraint(Sketcher.Constraint("Equal", 26, 42))
sketch1.addConstraint(Sketcher.Constraint("Equal", 22, 46))
sketch1.addConstraint(Sketcher.Constraint("Equal", 58, 4))
sketch1.addConstraint(Sketcher.Constraint("Equal", 62, 8))
sketch1.addConstraint(Sketcher.Constraint("Equal", 66, 12))
sketch1.addConstraint(Sketcher.Constraint("Equal", 70, 16))
sketch1.addConstraint(Sketcher.Constraint("Equal", 12, 20))
sketch1.addConstraint(Sketcher.Constraint("Equal", 8, 24))
sketch1.addConstraint(Sketcher.Constraint("Equal", 4, 28))
sketch1.addConstraint(Sketcher.Constraint("Equal", 0, 14))
sketch1.addConstraint(Sketcher.Constraint("Diameter", 72, Q("0.169 in")))
sketch1.addConstraint(Sketcher.Constraint("Radius", 1, Q("0.033 in")))
sketch1.addConstraint(Sketcher.Constraint("Radius", 3, Q("0.012 in")))
sketch1.addConstraint(Sketcher.Constraint("Radius", 5, Q("0.031 in")))
sketch1.addConstraint(Sketcher.Constraint("Radius", 7, Q("0.079 in")))
sketch1.addConstraint(Sketcher.Constraint("Radius", 15, Q("0.118 in")))
sketch1.addConstraint(Sketcher.Constraint("DistanceX", 2, 2, 2, 1, Q("0.083 in")))
sketch1.addConstraint(Sketcher.Constraint("DistanceX", 6, 1, 6, 2, Q("0.185 in")))
sketch1.addConstraint(Sketcher.Constraint("DistanceX", 10, 2, 10, 1, Q("0.028 in")))
sketch1.addConstraint(Sketcher.Constraint("DistanceX", -1, 1, 15, 3, Q("0.140622 in")))
sketch1.addConstraint(Sketcher.Constraint("DistanceX", 34, 2, 34, 1, 2.2668))
sketch1.addConstraint(Sketcher.Constraint("DistanceX", -1, 1, 1, 3, Q("0.0733 in")))
sketch1.addConstraint(Sketcher.Constraint("DistanceY", -1, 1, 1, 3, Q("0.1616 in")))
sketch1.addConstraint(Sketcher.Constraint("DistanceX", 72, 3, -1, 1, Q("0.1202 in")))
sketch1.addConstraint(Sketcher.Constraint("DistanceY", -1, 1, 72, 3, Q("0.4511 in")))
pad1 = body.newObject("PartDesign::Pad", "Pad")
pad1.Profile = sketch1
pad1.Length = Q("7.8937008 in")

doc.recompute()
